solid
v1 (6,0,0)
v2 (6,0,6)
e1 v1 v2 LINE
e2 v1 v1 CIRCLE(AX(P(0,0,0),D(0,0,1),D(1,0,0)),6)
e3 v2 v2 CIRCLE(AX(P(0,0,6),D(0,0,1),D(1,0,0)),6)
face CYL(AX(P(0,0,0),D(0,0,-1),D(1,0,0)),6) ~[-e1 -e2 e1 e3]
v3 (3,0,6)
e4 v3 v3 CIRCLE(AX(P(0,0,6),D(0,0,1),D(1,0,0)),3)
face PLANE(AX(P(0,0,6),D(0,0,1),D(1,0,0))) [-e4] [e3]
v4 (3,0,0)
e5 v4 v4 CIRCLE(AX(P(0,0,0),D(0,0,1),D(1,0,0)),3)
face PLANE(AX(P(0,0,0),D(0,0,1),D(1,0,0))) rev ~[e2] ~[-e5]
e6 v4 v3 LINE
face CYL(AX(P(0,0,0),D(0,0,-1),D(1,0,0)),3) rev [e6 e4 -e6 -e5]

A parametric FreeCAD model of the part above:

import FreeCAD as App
import Part
import Sketcher
from FreeCAD import Vector
Q = App.Units.Quantity

doc = App.newDocument("Part")
body = doc.addObject("PartDesign::Body", "Body")

# Sketch on XY plane
sketch1 = body.newObject("Sketcher::SketchObject", "Sketch")
sketch1.AttachmentSupport = (doc.getObject("XY_Plane"), [""])
sketch1.MapMode = "FlatFace"
sketch1.addGeometry([
    Part.Circle(Vector(0, 0, 0), Vector(0, 0, 1), 6),
    Part.Circle(Vector(0, 0, 0), Vector(0, 0, 1), 3),
], False)
sketch1.addConstraint([
    Sketcher.Constraint("Coincident", 0, 3, -1, 1),
    Sketcher.Constraint("Coincident", 1, 3, -1, 1),
    Sketcher.Constraint("Diameter", 0, Q("12 mm")),
    Sketcher.Constraint("Diameter", 1, Q("6 mm")),
])
pad1 = body.newObject("PartDesign::Pad", "Pad")
pad1.Profile = sketch1
pad1.Length = 6

doc.recompute()
